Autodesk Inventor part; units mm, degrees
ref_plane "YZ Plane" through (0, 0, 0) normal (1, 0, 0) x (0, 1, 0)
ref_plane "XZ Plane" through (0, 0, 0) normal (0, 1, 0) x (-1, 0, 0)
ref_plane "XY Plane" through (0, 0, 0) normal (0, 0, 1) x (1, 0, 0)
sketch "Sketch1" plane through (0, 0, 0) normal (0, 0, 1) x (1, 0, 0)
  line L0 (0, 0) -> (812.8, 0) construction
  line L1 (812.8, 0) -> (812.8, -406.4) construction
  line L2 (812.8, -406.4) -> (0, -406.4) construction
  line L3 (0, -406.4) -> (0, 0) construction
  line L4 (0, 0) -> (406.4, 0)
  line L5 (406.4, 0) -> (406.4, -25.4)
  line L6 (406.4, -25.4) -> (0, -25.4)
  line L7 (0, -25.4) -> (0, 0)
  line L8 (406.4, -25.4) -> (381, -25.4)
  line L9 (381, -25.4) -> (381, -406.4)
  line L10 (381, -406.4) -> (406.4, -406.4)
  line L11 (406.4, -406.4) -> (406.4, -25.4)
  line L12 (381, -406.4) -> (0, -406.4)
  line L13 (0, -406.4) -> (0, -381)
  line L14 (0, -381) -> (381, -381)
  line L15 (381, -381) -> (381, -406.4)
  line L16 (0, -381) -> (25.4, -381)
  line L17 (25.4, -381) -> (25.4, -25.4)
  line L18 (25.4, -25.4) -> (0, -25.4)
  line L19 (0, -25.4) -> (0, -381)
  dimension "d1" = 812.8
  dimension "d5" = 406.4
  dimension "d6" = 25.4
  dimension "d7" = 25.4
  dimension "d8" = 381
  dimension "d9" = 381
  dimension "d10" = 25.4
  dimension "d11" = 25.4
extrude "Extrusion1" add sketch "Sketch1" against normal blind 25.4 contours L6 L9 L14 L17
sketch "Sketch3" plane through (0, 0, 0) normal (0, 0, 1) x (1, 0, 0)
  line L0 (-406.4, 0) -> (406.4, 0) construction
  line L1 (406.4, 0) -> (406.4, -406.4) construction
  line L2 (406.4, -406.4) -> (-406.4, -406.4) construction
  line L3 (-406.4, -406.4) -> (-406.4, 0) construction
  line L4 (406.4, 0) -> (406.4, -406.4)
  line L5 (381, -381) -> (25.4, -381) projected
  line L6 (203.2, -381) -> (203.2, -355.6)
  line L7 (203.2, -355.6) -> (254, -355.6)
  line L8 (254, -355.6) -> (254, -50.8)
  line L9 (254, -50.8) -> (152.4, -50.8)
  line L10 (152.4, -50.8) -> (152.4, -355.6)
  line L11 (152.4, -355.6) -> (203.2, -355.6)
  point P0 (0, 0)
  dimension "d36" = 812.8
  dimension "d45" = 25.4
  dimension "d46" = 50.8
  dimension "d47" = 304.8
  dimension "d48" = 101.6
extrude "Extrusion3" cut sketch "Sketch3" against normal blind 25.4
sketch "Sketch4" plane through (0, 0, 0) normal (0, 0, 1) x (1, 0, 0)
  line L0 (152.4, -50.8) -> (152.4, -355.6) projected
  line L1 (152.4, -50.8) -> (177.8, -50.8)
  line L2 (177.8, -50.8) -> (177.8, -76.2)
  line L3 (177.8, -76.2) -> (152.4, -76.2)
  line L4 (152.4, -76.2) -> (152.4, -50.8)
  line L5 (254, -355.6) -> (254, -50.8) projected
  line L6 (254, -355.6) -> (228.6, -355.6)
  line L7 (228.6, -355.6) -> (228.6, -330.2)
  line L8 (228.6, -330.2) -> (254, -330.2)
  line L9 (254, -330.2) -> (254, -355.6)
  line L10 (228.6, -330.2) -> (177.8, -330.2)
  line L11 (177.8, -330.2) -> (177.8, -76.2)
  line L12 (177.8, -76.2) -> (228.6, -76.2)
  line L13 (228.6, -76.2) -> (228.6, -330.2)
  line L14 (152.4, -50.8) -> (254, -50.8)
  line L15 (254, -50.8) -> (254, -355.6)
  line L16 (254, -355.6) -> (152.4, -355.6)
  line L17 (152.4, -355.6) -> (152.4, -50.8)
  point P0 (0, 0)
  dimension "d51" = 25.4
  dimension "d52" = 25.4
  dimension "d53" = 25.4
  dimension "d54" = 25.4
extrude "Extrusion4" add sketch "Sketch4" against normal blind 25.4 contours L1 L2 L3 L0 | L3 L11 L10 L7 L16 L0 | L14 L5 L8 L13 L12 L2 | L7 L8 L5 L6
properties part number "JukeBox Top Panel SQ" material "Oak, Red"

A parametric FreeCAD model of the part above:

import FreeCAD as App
import Part
import Sketcher

V = App.Vector
Q = App.Units.Quantity

doc = App.newDocument("Part")
body = doc.addObject("PartDesign::Body", "Body")

sketch1 = body.newObject("Sketcher::SketchObject", "Sketch")
sketch1.AttachmentSupport = (doc.getObject("XY_Plane"), [""])
sketch1.MapMode = "FlatFace"
sketch1.addGeometry([
    Part.LineSegment(V(381, -25, 0), V(25, -25, 0)),
    Part.LineSegment(V(25, -25, 0), V(25, -381, 0)),
    Part.LineSegment(V(25, -381, 0), V(381, -381, 0)),
    Part.LineSegment(V(381, -381, 0), V(381, -25, 0)),
], False)
sketch1.addConstraint([
    Sketcher.Constraint("Coincident", 0, 2, 1, 1),
    Sketcher.Constraint("Coincident", 1, 2, 2, 1),
    Sketcher.Constraint("Coincident", 2, 2, 3, 1),
    Sketcher.Constraint("Coincident", 3, 2, 0, 1),
    Sketcher.Constraint("Horizontal", 0),
    Sketcher.Constraint("Vertical", 1),
    Sketcher.Constraint("Horizontal", 2),
    Sketcher.Constraint("Vertical", 3),
    Sketcher.Constraint("Equal", 2, 1),
    Sketcher.Constraint("DistanceX", -1, 1, 0, 2, Q("1 in")),
    Sketcher.Constraint("DistanceY", 0, 2, -1, 1, Q("1 in")),
    Sketcher.Constraint("DistanceY", 1, 2, -1, 1, Q("15 in")),
])
pad1 = body.newObject("PartDesign::Pad", "Pad")
pad1.Profile = sketch1
pad1.Length = Q("1 in")
pad1.Reversed = True

sketch2 = body.newObject("Sketcher::SketchObject", "Sketch001")
sketch2.AttachmentSupport = (doc.getObject("XY_Plane"), [""])
sketch2.MapMode = "FlatFace"
sketch2.addGeometry([
    Part.LineSegment(V(152, -356, 0), V(254, -356, 0)),
    Part.LineSegment(V(254, -356, 0), V(254, -51, 0)),
    Part.LineSegment(V(254, -51, 0), V(152, -51, 0)),
    Part.LineSegment(V(152, -51, 0), V(152, -356, 0)),
], False)
sketch2.addConstraint([
    Sketcher.Constraint("Coincident", 0, 2, 1, 1),
    Sketcher.Constraint("Coincident", 1, 2, 2, 1),
    Sketcher.Constraint("Coincident", 2, 2, 3, 1),
    Sketcher.Constraint("Coincident", 3, 2, 0, 1),
    Sketcher.Constraint("Horizontal", 0),
    Sketcher.Constraint("Vertical", 1),
    Sketcher.Constraint("Horizontal", 2),
    Sketcher.Constraint("Vertical", 3),
    Sketcher.Constraint("DistanceX", 0, 1, 0, 2, Q("4 in")),
    Sketcher.Constraint("DistanceY", 1, 1, 1, 2, Q("12 in")),
    Sketcher.Constraint("DistanceY", 1, 2, -1, 1, Q("2 in")),
    Sketcher.Constraint("DistanceX", -1, 1, 0, 2, Q("10 in")),
])
pocket1 = body.newObject("PartDesign::Pocket", "Pocket")
pocket1.Profile = sketch2
pocket1.Length = Q("1 in")

sketch3 = body.newObject("Sketcher::SketchObject", "Sketch002")
sketch3.AttachmentSupport = (doc.getObject("XY_Plane"), [""])
sketch3.MapMode = "FlatFace"
sketch3.addGeometry([
    Part.LineSegment(V(152, -51, 0), V(152, -356, 0)),
    Part.LineSegment(V(152, -356, 0), V(254, -356, 0)),
    Part.LineSegment(V(254, -356, 0), V(254, -51, 0)),
    Part.LineSegment(V(254, -51, 0), V(152, -51, 0)),
    Part.LineSegment(V(229, -76, 0), V(229, -330, 0)),
    Part.LineSegment(V(229, -330, 0), V(178, -330, 0)),
    Part.LineSegment(V(178, -330, 0), V(178, -76, 0)),
    Part.LineSegment(V(178, -76, 0), V(229, -76, 0)),
], False)
sketch3.addConstraint([
    Sketcher.Constraint("Coincident", 0, 2, 1, 1),
    Sketcher.Constraint("Coincident", 1, 2, 2, 1),
    Sketcher.Constraint("Coincident", 2, 2, 3, 1),
    Sketcher.Constraint("Coincident", 3, 2, 0, 1),
    Sketcher.Constraint("Coincident", 4, 2, 5, 1),
    Sketcher.Constraint("Coincident", 5, 2, 6, 1),
    Sketcher.Constraint("Coincident", 6, 2, 7, 1),
    Sketcher.Constraint("Coincident", 7, 2, 4, 1),
    Sketcher.Constraint("Vertical", 0),
    Sketcher.Constraint("Horizontal", 1),
    Sketcher.Constraint("Vertical", 2),
    Sketcher.Constraint("Horizontal", 3),
    Sketcher.Constraint("Vertical", 4),
    Sketcher.Constraint("Horizontal", 5),
    Sketcher.Constraint("Vertical", 6),
    Sketcher.Constraint("Horizontal", 7),
    Sketcher.Constraint("DistanceX", 4, 2, 1, 2, Q("1 in")),
    Sketcher.Constraint("DistanceY", 1, 2, 4, 2, Q("1 in")),
    Sketcher.Constraint("DistanceX", 0, 2, 5, 2, Q("1 in")),
    Sketcher.Constraint("DistanceY", 6, 2, 3, 2, Q("1 in")),
    Sketcher.Constraint("DistanceX", 1, 1, 1, 2, Q("4 in")),
    Sketcher.Constraint("DistanceY", 0, 2, 0, 1, Q("12 in")),
    Sketcher.Constraint("DistanceX", -1, 1, 0, 2, Q("6 in")),
    Sketcher.Constraint("DistanceY", 0, 2, -1, 1, Q("14 in")),
])
pad2 = body.newObject("PartDesign::Pad", "Pad001")
pad2.Profile = sketch3
pad2.Length = Q("1 in")
pad2.Reversed = True

doc.recompute()
